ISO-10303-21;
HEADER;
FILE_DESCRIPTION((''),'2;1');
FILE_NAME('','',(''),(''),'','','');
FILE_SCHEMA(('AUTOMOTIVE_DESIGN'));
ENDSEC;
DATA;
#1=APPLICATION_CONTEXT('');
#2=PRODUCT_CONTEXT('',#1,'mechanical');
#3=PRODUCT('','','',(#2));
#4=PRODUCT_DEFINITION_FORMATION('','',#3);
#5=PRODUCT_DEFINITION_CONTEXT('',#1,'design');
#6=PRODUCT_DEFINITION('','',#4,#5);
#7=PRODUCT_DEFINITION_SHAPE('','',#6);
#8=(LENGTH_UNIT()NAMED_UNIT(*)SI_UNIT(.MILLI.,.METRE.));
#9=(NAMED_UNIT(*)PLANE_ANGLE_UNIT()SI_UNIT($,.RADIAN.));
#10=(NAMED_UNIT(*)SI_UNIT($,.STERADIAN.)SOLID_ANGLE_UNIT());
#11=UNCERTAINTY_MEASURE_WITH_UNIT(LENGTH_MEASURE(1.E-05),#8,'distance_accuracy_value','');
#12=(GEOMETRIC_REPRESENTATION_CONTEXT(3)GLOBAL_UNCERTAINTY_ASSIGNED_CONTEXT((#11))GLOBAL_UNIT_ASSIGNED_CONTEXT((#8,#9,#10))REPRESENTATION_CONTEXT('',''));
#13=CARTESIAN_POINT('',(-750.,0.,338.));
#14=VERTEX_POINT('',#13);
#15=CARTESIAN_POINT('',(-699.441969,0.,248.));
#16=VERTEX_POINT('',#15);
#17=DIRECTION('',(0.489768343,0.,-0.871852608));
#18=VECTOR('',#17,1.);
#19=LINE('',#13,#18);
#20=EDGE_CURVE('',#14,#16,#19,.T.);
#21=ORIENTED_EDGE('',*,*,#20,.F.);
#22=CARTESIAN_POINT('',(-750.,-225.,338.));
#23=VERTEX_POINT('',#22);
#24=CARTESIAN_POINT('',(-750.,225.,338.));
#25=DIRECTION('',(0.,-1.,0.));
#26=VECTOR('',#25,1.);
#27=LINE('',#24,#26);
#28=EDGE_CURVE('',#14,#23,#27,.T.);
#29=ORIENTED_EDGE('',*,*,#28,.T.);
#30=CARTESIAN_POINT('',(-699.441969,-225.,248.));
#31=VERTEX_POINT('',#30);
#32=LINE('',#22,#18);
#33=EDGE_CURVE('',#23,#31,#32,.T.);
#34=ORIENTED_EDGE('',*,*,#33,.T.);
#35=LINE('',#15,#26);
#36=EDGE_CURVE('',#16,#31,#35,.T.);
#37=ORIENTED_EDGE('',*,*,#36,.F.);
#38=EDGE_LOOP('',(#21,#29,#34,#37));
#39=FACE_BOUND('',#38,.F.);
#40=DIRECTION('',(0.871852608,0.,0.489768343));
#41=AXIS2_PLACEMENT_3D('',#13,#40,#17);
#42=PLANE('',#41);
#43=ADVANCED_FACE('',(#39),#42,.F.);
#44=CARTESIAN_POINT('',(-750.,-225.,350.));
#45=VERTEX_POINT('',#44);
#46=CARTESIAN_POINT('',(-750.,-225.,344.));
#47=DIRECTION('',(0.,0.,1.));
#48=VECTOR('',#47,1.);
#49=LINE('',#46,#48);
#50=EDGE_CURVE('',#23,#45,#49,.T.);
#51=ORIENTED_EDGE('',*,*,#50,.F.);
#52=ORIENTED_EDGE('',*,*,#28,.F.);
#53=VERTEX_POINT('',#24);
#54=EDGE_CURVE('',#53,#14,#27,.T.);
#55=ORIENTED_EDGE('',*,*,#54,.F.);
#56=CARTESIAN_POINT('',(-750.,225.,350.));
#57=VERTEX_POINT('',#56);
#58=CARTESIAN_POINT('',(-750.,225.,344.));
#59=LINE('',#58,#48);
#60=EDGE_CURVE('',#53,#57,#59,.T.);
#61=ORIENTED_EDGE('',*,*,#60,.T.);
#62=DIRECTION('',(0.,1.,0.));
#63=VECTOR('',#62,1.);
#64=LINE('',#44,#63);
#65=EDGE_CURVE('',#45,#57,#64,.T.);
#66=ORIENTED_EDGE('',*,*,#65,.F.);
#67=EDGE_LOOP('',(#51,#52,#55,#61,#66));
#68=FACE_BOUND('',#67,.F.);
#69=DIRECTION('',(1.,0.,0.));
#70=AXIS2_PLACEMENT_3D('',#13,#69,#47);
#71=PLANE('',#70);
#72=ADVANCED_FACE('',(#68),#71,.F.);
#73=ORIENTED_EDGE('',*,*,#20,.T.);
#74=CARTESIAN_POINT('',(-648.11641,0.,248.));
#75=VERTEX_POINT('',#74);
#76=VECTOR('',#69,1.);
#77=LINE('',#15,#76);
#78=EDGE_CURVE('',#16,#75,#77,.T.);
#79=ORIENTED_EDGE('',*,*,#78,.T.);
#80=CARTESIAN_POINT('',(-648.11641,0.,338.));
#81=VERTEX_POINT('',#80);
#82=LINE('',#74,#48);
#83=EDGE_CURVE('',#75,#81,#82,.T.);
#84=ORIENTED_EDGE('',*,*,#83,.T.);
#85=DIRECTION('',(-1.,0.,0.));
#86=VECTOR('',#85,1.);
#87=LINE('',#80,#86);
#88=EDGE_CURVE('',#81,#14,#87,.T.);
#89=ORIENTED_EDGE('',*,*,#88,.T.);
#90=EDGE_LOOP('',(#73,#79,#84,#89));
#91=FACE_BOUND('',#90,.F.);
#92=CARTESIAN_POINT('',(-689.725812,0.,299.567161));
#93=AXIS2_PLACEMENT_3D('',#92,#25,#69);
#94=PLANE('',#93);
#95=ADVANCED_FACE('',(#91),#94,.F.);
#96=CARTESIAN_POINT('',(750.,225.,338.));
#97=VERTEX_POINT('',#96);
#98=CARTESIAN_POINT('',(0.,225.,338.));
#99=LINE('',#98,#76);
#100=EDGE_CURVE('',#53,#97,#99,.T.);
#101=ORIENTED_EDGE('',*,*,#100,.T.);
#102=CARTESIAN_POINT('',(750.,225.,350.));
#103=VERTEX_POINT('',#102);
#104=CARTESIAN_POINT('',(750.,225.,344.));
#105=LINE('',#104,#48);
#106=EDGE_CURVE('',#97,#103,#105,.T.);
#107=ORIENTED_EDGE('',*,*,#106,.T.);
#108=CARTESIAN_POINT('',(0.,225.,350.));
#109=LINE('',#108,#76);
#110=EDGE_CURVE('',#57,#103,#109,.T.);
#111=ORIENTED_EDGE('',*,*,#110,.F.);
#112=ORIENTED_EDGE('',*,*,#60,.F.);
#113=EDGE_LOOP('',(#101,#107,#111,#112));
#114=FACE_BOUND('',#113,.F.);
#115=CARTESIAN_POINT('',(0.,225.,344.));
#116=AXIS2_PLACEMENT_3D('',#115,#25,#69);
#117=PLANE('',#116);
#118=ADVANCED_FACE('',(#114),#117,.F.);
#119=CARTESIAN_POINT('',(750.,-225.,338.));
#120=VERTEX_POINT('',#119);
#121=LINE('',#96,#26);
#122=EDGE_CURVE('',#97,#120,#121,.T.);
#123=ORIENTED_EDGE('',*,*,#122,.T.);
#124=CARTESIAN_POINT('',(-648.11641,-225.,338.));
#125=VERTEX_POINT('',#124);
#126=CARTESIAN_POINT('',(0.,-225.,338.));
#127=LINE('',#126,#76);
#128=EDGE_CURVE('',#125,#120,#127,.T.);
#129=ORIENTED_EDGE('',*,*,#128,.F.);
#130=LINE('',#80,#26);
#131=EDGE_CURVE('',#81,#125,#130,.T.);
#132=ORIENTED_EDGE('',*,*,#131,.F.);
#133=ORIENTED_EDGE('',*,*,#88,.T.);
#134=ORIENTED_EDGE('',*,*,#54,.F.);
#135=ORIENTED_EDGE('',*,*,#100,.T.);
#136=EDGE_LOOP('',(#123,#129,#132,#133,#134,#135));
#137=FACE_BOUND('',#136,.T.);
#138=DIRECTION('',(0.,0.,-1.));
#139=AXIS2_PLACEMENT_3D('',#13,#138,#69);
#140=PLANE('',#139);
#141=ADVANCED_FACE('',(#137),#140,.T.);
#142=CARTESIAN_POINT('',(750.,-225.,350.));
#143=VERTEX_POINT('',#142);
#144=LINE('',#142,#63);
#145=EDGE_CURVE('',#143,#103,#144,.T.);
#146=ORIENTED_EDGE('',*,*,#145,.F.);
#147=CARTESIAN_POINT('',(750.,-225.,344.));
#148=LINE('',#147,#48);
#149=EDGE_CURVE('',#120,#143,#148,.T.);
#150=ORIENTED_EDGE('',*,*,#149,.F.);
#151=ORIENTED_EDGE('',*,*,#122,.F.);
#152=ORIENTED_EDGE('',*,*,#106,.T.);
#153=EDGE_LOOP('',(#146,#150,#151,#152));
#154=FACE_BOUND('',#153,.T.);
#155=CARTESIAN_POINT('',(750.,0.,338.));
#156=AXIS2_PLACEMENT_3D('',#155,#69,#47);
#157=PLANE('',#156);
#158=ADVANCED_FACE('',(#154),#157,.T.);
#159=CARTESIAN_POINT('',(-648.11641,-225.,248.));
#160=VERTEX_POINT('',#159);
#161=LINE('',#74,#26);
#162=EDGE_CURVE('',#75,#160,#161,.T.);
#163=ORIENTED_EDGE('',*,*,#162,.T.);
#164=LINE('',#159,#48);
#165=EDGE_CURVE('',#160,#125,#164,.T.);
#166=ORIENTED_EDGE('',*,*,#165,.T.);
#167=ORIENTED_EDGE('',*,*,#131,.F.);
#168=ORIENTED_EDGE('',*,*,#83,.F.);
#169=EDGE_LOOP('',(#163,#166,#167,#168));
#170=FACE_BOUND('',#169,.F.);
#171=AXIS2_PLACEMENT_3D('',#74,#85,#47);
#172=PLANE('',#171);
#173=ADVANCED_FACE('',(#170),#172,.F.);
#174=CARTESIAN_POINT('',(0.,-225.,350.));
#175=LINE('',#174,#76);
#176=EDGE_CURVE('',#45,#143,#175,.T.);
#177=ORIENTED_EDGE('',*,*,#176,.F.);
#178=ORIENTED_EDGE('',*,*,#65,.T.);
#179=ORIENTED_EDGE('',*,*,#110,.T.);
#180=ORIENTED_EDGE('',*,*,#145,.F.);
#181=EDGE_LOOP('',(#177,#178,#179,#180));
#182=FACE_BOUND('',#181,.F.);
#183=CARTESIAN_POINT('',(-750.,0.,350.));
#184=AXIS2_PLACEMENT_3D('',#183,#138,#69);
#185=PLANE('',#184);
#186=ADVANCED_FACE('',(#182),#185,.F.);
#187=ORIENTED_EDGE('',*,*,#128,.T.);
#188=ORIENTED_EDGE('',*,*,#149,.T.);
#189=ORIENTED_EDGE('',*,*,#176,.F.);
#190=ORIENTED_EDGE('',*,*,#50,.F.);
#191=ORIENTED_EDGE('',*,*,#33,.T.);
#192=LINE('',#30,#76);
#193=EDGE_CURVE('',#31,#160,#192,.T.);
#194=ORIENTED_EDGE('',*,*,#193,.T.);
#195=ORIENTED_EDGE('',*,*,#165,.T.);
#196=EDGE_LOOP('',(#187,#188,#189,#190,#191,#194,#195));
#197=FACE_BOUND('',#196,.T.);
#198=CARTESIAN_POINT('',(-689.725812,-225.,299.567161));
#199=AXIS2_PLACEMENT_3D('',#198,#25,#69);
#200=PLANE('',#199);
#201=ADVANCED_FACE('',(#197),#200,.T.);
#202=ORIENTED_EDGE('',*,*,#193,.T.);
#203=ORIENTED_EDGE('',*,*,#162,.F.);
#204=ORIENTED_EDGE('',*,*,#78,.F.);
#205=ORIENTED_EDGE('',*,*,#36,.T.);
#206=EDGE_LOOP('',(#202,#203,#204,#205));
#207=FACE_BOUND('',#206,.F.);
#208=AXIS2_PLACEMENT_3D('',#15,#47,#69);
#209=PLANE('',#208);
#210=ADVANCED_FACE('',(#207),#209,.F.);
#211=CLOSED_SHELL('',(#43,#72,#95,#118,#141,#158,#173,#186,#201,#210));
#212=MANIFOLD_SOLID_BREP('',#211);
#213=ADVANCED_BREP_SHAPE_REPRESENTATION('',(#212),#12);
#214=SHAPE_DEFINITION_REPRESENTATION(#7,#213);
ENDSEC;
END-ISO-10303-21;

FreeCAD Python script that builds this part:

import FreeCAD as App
import Part
import Sketcher
from FreeCAD import Vector
Q = App.Units.Quantity

doc = App.newDocument("Part")
params = doc.addObject("Spreadsheet::Sheet", "Params")
for row, (alias, value) in enumerate([
    ("sketch1_width", "1500 mm"),
    ("sketch1_height", "12 mm"),
    ("pad1_length", "450 mm"),
    ("sketch2_height", "90 mm"),
    ("pad2_length", "225 mm"),
], start=1):
    params.set(f"A{row}", alias)
    params.set(f"B{row}", "=" + value)
    params.setAlias(f"B{row}", alias)

body = doc.addObject("PartDesign::Body", "Body")

sketch1 = body.newObject("Sketcher::SketchObject", "Sketch")
sketch1.AttachmentSupport = (doc.getObject("XZ_Plane"), [""])
sketch1.MapMode = "FlatFace"
sketch1.addGeometry(Part.LineSegment(Vector(-750, 350, 0), Vector(-750, 338, 0)), False)
sketch1.addGeometry(Part.LineSegment(Vector(-750, 338, 0), Vector(750, 338, 0)), False)
sketch1.addGeometry(Part.LineSegment(Vector(750, 338, 0), Vector(750, 350, 0)), False)
sketch1.addGeometry(Part.LineSegment(Vector(750, 350, 0), Vector(-750, 350, 0)), False)
sketch1.addConstraint(Sketcher.Constraint("Coincident", 0, 2, 1, 1))
sketch1.addConstraint(Sketcher.Constraint("Coincident", 1, 2, 2, 1))
sketch1.addConstraint(Sketcher.Constraint("Coincident", 2, 2, 3, 1))
sketch1.addConstraint(Sketcher.Constraint("Coincident", 3, 2, 0, 1))
sketch1.addConstraint(Sketcher.Constraint("Vertical", 0))
sketch1.addConstraint(Sketcher.Constraint("Horizontal", 1))
sketch1.addConstraint(Sketcher.Constraint("Vertical", 2))
sketch1.addConstraint(Sketcher.Constraint("Horizontal", 3))
sketch1.addConstraint(Sketcher.Constraint("DistanceX", 1, 1, 1, 2, Q("1500 mm")))
sketch1.addConstraint(Sketcher.Constraint("DistanceY", 0, 2, 0, 1, Q("12 mm")))
sketch1.addConstraint(Sketcher.Constraint("DistanceX", 0, 2, -1, 1, Q("750 mm")))
sketch1.addConstraint(Sketcher.Constraint("DistanceY", -1, 1, 0, 2, Q("338 mm")))
sketch1.setExpression("Constraints[8]", "Params.sketch1_width")
sketch1.setExpression("Constraints[9]", "Params.sketch1_height")
pad1 = body.newObject("PartDesign::Pad", "Pad")
pad1.Profile = sketch1
pad1.setExpression("Length", "Params.pad1_length")
pad1.Midplane = True

sketch2 = body.newObject("Sketcher::SketchObject", "Sketch001")
sketch2.AttachmentSupport = (doc.getObject("XZ_Plane"), [""])
sketch2.MapMode = "FlatFace"
sketch2.addGeometry(Part.LineSegment(Vector(-648, 338, 0), Vector(-750, 338, 0)), False)
sketch2.addGeometry(Part.LineSegment(Vector(-750, 338, 0), Vector(-699, 248, 0)), False)
sketch2.addGeometry(Part.LineSegment(Vector(-699, 248, 0), Vector(-648, 248, 0)), False)
sketch2.addGeometry(Part.LineSegment(Vector(-648, 248, 0), Vector(-648, 338, 0)), False)
sketch2.addConstraint(Sketcher.Constraint("Coincident", 0, 2, 1, 1))
sketch2.addConstraint(Sketcher.Constraint("Coincident", 1, 2, 2, 1))
sketch2.addConstraint(Sketcher.Constraint("Coincident", 2, 2, 3, 1))
sketch2.addConstraint(Sketcher.Constraint("Coincident", 3, 2, 0, 1))
sketch2.addConstraint(Sketcher.Constraint("Horizontal", 0))
sketch2.addConstraint(Sketcher.Constraint("Horizontal", 2))
sketch2.addConstraint(Sketcher.Constraint("Vertical", 3))
sketch2.addConstraint(Sketcher.Constraint("DistanceY", 3, 1, 3, 2, Q("90 mm")))
sketch2.addConstraint(Sketcher.Constraint("DistanceX", 0, 2, -1, 1, Q("750 mm")))
sketch2.addConstraint(Sketcher.Constraint("DistanceY", -1, 1, 0, 2, Q("338 mm")))
sketch2.addConstraint(Sketcher.Constraint("DistanceX", 0, 2, 0, 1, Q("101.88359 mm")))
sketch2.addConstraint(Sketcher.Constraint("DistanceX", 2, 1, 2, 2, Q("51.32556 mm")))
sketch2.setExpression("Constraints[7]", "Params.sketch2_height")
pad2 = body.newObject("PartDesign::Pad", "Pad001")
pad2.Profile = sketch2
pad2.setExpression("Length", "Params.pad2_length")

doc.recompute()
